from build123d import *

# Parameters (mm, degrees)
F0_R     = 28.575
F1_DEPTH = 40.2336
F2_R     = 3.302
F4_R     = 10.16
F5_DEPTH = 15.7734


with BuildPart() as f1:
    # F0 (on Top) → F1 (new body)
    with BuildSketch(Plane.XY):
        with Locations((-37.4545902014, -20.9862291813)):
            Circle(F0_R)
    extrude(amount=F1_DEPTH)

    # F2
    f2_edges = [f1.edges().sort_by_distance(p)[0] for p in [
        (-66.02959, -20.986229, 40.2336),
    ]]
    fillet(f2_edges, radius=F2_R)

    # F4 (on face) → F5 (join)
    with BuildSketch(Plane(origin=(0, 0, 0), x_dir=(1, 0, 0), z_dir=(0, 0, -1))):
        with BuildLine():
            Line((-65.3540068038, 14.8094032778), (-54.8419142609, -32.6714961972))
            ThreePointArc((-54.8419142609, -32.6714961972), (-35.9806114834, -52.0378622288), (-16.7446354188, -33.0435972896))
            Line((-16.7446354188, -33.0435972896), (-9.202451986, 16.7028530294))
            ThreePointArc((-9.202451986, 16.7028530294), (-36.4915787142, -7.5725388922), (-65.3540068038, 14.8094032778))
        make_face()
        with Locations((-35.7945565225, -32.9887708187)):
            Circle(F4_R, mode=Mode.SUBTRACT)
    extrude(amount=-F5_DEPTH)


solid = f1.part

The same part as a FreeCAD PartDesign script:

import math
import FreeCAD as App
import Part
import Sketcher
Q = App.Units.Quantity


def edges_at(feature, points):
    """Names of the edges that pass closest to the given points."""
    edges = feature.Shape.Edges
    near = lambda p: min(range(len(edges)), key=lambda i: edges[i].distToShape(Part.Vertex(*p))[0])
    return sorted({f"Edge{near(p) + 1}" for p in points})

doc = App.newDocument("Part")
body = doc.addObject("PartDesign::Body", "Body")

# Sketch on XY plane
sketch1 = doc.addObject("Sketcher::SketchObject", "Sketch")
body.addObject(sketch1)
sketch1.AttachmentSupport = (doc.XY_Plane, [""])
sketch1.MapMode = "FlatFace"
sketch1.addGeometry(Part.Circle(App.Vector(-37, -21, 0), App.Vector(0, 0, 1), 29), False)
sketch1.addConstraint(Sketcher.Constraint("Diameter", 0, Q("2.25 in")))
sketch1.addConstraint(Sketcher.Constraint("DistanceX", 0, 3, -1, 1, Q("37.45459 mm")))
sketch1.addConstraint(Sketcher.Constraint("DistanceY", 0, 3, -1, 1, Q("20.986229 mm")))
pad1 = doc.addObject("PartDesign::Pad", "Pad")
body.addObject(pad1)
pad1.Profile = sketch1
pad1.Length = Q("1.584 in")
doc.recompute()

fillet = doc.addObject("PartDesign::Fillet", "Fillet")
body.addObject(fillet)
fillet.Base = (pad1, edges_at(pad1, [(-66.03, -20.986, 40.234)]))
fillet.Radius = Q("0.13 in")

# Sketch on XY plane
sketch2 = doc.addObject("Sketcher::SketchObject", "Sketch001")
body.addObject(sketch2)
sketch2.AttachmentSupport = (doc.XY_Plane, [""])
sketch2.MapMode = "FlatFace"
sketch2.addGeometry(Part.LineSegment(App.Vector(-65, -15, 0), App.Vector(-55, 33, 0)), False)
sketch2.addGeometry(Part.ArcOfCircle(Part.Circle(App.Vector(-36, 33, 0), App.Vector(0, 0, 1), 19), math.radians(0), math.radians(181)), False)
sketch2.addGeometry(Part.LineSegment(App.Vector(-17, 33, 0), App.Vector(-9, -17, 0)), False)
sketch2.addGeometry(Part.ArcOfCircle(Part.Circle(App.Vector(-37, -21, 0), App.Vector(0, 0, 1), 29), math.radians(9), math.radians(168)), False)
sketch2.addGeometry(Part.Circle(App.Vector(-36, 33, 0), App.Vector(0, 0, 1), 10), False)
sketch2.addConstraint(Sketcher.Constraint("Coincident", 0, 2, 1, 2))
sketch2.addConstraint(Sketcher.Constraint("Coincident", 1, 1, 2, 1))
sketch2.addConstraint(Sketcher.Constraint("Tangent", 2, 2, 3, 1))
sketch2.addConstraint(Sketcher.Constraint("Tangent", 3, 2, 0, 1))
sketch2.addConstraint(Sketcher.Constraint("Coincident", 4, 3, 1, 3))
sketch2.addConstraint(Sketcher.Constraint("Diameter", 4, Q("0.8 in")))
sketch2.addConstraint(Sketcher.Constraint("Radius", 1, Q("0.75 in")))
sketch2.addConstraint(Sketcher.Constraint("Radius", 3, Q("1.125 in")))
sketch2.addConstraint(Sketcher.Constraint("DistanceY", 3, 3, 1, 3, Q("2.125 in")))
sketch2.addConstraint(Sketcher.Constraint("DistanceY", 0, 2, 1, 1, Q("0.372101 mm")))
sketch2.addConstraint(Sketcher.Constraint("DistanceY", 3, 2, 0, 2, Q("47.480899 mm")))
sketch2.addConstraint(Sketcher.Constraint("DistanceY", -1, 1, 1, 3, Q("32.988771 mm")))
sketch2.addConstraint(Sketcher.Constraint("DistanceX", 3, 3, -1, 1, Q("37.45459 mm")))
sketch2.addConstraint(Sketcher.Constraint("DistanceX", 2, 2, -1, 1, Q("9.202452 mm")))
pad2 = doc.addObject("PartDesign::Pad", "Pad001")
body.addObject(pad2)
pad2.Profile = sketch2
pad2.Length = Q("0.621 in")

doc.recompute()
